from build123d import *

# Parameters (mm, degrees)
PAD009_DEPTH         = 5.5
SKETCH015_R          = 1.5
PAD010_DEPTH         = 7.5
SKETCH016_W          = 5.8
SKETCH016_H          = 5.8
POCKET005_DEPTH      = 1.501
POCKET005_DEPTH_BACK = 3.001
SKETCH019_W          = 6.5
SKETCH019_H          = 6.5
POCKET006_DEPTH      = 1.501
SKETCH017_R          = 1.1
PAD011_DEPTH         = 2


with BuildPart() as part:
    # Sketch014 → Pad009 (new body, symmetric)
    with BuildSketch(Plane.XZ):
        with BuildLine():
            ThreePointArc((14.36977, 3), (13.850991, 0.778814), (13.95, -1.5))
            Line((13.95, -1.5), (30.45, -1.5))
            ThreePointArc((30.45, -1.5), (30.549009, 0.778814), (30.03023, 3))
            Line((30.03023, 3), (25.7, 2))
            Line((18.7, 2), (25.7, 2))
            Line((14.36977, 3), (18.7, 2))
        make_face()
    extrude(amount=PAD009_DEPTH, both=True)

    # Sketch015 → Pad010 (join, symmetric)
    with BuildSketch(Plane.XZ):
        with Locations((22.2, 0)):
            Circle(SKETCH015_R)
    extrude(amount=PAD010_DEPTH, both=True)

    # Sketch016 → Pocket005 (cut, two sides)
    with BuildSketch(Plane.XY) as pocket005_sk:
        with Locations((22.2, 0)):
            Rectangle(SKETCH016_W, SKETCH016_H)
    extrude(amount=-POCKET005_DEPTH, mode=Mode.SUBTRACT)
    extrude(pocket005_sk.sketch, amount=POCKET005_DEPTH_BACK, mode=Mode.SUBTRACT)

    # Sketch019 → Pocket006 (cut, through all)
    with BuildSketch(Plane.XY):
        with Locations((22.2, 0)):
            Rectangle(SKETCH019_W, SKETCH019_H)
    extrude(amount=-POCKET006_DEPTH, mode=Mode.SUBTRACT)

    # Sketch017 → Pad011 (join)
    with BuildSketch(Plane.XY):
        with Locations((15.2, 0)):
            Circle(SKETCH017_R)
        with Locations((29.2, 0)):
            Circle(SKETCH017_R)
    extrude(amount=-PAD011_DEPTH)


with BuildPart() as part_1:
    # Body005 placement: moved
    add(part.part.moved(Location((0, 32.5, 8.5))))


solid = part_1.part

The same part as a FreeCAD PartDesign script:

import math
import FreeCAD as App
import Part
import Sketcher
from FreeCAD import Vector
Q = App.Units.Quantity


def add_polygon(sketch, points):
    """Adds a closed chain of lines whose ends are joined by coincident constraints."""
    first, n = sketch.GeometryCount, len(points)
    for a, b in zip(points, points[1:] + points[:1]):
        sketch.addGeometry(Part.LineSegment(App.Vector(*a, 0), App.Vector(*b, 0)), False)
    for i in range(n):
        sketch.addConstraint(Sketcher.Constraint("Coincident", first + i, 2, first + (i + 1) % n, 1))

doc = App.newDocument("Part")
body = doc.addObject("PartDesign::Body", "Body")

sketch1 = body.newObject("Sketcher::SketchObject", "Sketch")
sketch1.AttachmentSupport = (doc.getObject("XZ_Plane"), [""])
sketch1.MapMode = "FlatFace"
sketch1.addGeometry([
    Part.ArcOfCircle(Part.Circle(Vector(22.2, 0, 0), Vector(0, 0, 1), 8.4), math.radians(159), math.radians(190)),
    Part.LineSegment(Vector(13.9, -1.5, 0), Vector(30.4, -1.5, 0)),
    Part.ArcOfCircle(Part.Circle(Vector(22.2, 0, 0), Vector(0, 0, 1), 8.4), math.radians(-10), math.radians(21)),
    Part.LineSegment(Vector(30, 3, 0), Vector(25.7, 2, 0)),
    Part.LineSegment(Vector(25.7, 2, 0), Vector(18.7, 2, 0)),
    Part.LineSegment(Vector(18.7, 2, 0), Vector(14.4, 3, 0)),
], False)
sketch1.addConstraint([
    Sketcher.Constraint("Coincident", 0, 2, 1, 1),
    Sketcher.Constraint("Coincident", 1, 2, 2, 1),
    Sketcher.Constraint("Coincident", 2, 2, 3, 1),
    Sketcher.Constraint("Coincident", 3, 2, 4, 1),
    Sketcher.Constraint("Coincident", 4, 2, 5, 1),
    Sketcher.Constraint("Coincident", 5, 2, 0, 1),
    Sketcher.Constraint("Horizontal", 1),
    Sketcher.Constraint("Horizontal", 4),
    Sketcher.Constraint("Coincident", 2, 3, 0, 3),
    Sketcher.Constraint("Equal", 0, 2),
    Sketcher.Constraint("PointOnObject", 0, 3, -1),
    Sketcher.Constraint("Horizontal", 2, 2, 5, 2),
    Sketcher.Constraint("Equal", 3, 5),
    Sketcher.Constraint("DistanceX", 4, 2, 4, 1, Q("7 mm")),
    Sketcher.Constraint("DistanceX", 1, 1, 1, 2, Q("16.5 mm")),
    Sketcher.Constraint("DistanceY", -1, 1, 2, 2, Q("3 mm")),
    Sketcher.Constraint("DistanceY", -1, 1, 3, 2, Q("2 mm")),
    Sketcher.Constraint("DistanceY", 0, 2, -1, 1, Q("1.5 mm")),
    Sketcher.Constraint("DistanceX", -1, 1, 3, 2, Q("25.7 mm")),
])
pad1 = body.newObject("PartDesign::Pad", "Pad")
pad1.Profile = sketch1
pad1.Length = 11
pad1.Midplane = True

sketch2 = body.newObject("Sketcher::SketchObject", "Sketch001")
sketch2.AttachmentSupport = (doc.getObject("XZ_Plane"), [""])
sketch2.MapMode = "FlatFace"
sketch2.addGeometry(Part.Circle(Vector(22.2, 0, 0), Vector(0, 0, 1), 1.5), False)
sketch2.addConstraint([
    Sketcher.Constraint("PointOnObject", 0, 3, -1),
    Sketcher.Constraint("Diameter", 0, Q("3 mm")),
    Sketcher.Constraint("DistanceX", -1, 1, 0, 3, Q("22.2 mm")),
])
pad2 = body.newObject("PartDesign::Pad", "Pad001")
pad2.Profile = sketch2
pad2.Length = 15
pad2.Midplane = True

sketch3 = body.newObject("Sketcher::SketchObject", "Sketch002")
sketch3.AttachmentSupport = (doc.getObject("XY_Plane"), [""])
sketch3.MapMode = "FlatFace"
add_polygon(sketch3, [(19, 3), (19, -3), (25, -3), (25, 3)])
sketch3.addConstraint([
    Sketcher.Constraint("Vertical", 0),
    Sketcher.Constraint("Horizontal", 1),
    Sketcher.Constraint("Vertical", 2),
    Sketcher.Constraint("Horizontal", 3),
    Sketcher.Constraint("Equal", 3, 0),
    Sketcher.Constraint("DistanceX", 1, 1, 1, 2, Q("5.8 mm")),
    Sketcher.Constraint("DistanceX", -1, 1, 0, 2, Q("19.3 mm")),
    Sketcher.Constraint("DistanceY", 0, 2, -1, 1, Q("2.9 mm")),
])
pocket1 = body.newObject("PartDesign::Pocket", "Pocket")
pocket1.Profile = sketch3
pocket1.Type = "ThroughAll"
pocket1.Midplane = True

sketch4 = body.newObject("Sketcher::SketchObject", "Sketch003")
sketch4.AttachmentSupport = (doc.getObject("XY_Plane"), [""])
sketch4.MapMode = "FlatFace"
add_polygon(sketch4, [(19, 3), (19, -3), (25, -3), (25, 3)])
sketch4.addConstraint([
    Sketcher.Constraint("Vertical", 0),
    Sketcher.Constraint("Horizontal", 1),
    Sketcher.Constraint("Vertical", 2),
    Sketcher.Constraint("Horizontal", 3),
    Sketcher.Constraint("Equal", 3, 0),
    Sketcher.Constraint("DistanceX", 1, 1, 1, 2, Q("6.5 mm")),
    Sketcher.Constraint("DistanceX", -1, 1, 0, 2, Q("18.95 mm")),
    Sketcher.Constraint("DistanceY", 0, 2, -1, 1, Q("3.25 mm")),
])
pocket2 = body.newObject("PartDesign::Pocket", "Pocket001")
pocket2.Profile = sketch4
pocket2.Type = "ThroughAll"

sketch5 = body.newObject("Sketcher::SketchObject", "Sketch004")
sketch5.AttachmentSupport = (doc.getObject("XY_Plane"), [""])
sketch5.MapMode = "FlatFace"
sketch5.addGeometry([
    Part.Circle(Vector(15.2, 0, 0), Vector(0, 0, 1), 1.1),
    Part.Circle(Vector(29.2, 0, 0), Vector(0, 0, 1), 1.1),
], False)
sketch5.addConstraint([
    Sketcher.Constraint("Equal", 0, 1),
    Sketcher.Constraint("PointOnObject", 0, 3, -1),
    Sketcher.Constraint("PointOnObject", 1, 3, -1),
    Sketcher.Constraint("Diameter", 0, Q("2.2 mm")),
    Sketcher.Constraint("DistanceX", 0, 3, 1, 3, Q("14 mm")),
    Sketcher.Constraint("DistanceX", -1, 1, 0, 3, Q("15.2 mm")),
])
pad3 = body.newObject("PartDesign::Pad", "Pad002")
pad3.Profile = sketch5
pad3.Length = 2
pad3.Reversed = True
body2 = doc.addObject("PartDesign::Body", "Body001")
doc.recompute()

body.Placement = App.Placement(Vector(0, 32.5, 8.5), App.Rotation(Vector(0, 0, 1), 0))
boolean = body2.newObject("PartDesign::Boolean", "Boolean")
boolean.Type = "Fuse"
boolean.addObjects([body])

doc.recompute()
